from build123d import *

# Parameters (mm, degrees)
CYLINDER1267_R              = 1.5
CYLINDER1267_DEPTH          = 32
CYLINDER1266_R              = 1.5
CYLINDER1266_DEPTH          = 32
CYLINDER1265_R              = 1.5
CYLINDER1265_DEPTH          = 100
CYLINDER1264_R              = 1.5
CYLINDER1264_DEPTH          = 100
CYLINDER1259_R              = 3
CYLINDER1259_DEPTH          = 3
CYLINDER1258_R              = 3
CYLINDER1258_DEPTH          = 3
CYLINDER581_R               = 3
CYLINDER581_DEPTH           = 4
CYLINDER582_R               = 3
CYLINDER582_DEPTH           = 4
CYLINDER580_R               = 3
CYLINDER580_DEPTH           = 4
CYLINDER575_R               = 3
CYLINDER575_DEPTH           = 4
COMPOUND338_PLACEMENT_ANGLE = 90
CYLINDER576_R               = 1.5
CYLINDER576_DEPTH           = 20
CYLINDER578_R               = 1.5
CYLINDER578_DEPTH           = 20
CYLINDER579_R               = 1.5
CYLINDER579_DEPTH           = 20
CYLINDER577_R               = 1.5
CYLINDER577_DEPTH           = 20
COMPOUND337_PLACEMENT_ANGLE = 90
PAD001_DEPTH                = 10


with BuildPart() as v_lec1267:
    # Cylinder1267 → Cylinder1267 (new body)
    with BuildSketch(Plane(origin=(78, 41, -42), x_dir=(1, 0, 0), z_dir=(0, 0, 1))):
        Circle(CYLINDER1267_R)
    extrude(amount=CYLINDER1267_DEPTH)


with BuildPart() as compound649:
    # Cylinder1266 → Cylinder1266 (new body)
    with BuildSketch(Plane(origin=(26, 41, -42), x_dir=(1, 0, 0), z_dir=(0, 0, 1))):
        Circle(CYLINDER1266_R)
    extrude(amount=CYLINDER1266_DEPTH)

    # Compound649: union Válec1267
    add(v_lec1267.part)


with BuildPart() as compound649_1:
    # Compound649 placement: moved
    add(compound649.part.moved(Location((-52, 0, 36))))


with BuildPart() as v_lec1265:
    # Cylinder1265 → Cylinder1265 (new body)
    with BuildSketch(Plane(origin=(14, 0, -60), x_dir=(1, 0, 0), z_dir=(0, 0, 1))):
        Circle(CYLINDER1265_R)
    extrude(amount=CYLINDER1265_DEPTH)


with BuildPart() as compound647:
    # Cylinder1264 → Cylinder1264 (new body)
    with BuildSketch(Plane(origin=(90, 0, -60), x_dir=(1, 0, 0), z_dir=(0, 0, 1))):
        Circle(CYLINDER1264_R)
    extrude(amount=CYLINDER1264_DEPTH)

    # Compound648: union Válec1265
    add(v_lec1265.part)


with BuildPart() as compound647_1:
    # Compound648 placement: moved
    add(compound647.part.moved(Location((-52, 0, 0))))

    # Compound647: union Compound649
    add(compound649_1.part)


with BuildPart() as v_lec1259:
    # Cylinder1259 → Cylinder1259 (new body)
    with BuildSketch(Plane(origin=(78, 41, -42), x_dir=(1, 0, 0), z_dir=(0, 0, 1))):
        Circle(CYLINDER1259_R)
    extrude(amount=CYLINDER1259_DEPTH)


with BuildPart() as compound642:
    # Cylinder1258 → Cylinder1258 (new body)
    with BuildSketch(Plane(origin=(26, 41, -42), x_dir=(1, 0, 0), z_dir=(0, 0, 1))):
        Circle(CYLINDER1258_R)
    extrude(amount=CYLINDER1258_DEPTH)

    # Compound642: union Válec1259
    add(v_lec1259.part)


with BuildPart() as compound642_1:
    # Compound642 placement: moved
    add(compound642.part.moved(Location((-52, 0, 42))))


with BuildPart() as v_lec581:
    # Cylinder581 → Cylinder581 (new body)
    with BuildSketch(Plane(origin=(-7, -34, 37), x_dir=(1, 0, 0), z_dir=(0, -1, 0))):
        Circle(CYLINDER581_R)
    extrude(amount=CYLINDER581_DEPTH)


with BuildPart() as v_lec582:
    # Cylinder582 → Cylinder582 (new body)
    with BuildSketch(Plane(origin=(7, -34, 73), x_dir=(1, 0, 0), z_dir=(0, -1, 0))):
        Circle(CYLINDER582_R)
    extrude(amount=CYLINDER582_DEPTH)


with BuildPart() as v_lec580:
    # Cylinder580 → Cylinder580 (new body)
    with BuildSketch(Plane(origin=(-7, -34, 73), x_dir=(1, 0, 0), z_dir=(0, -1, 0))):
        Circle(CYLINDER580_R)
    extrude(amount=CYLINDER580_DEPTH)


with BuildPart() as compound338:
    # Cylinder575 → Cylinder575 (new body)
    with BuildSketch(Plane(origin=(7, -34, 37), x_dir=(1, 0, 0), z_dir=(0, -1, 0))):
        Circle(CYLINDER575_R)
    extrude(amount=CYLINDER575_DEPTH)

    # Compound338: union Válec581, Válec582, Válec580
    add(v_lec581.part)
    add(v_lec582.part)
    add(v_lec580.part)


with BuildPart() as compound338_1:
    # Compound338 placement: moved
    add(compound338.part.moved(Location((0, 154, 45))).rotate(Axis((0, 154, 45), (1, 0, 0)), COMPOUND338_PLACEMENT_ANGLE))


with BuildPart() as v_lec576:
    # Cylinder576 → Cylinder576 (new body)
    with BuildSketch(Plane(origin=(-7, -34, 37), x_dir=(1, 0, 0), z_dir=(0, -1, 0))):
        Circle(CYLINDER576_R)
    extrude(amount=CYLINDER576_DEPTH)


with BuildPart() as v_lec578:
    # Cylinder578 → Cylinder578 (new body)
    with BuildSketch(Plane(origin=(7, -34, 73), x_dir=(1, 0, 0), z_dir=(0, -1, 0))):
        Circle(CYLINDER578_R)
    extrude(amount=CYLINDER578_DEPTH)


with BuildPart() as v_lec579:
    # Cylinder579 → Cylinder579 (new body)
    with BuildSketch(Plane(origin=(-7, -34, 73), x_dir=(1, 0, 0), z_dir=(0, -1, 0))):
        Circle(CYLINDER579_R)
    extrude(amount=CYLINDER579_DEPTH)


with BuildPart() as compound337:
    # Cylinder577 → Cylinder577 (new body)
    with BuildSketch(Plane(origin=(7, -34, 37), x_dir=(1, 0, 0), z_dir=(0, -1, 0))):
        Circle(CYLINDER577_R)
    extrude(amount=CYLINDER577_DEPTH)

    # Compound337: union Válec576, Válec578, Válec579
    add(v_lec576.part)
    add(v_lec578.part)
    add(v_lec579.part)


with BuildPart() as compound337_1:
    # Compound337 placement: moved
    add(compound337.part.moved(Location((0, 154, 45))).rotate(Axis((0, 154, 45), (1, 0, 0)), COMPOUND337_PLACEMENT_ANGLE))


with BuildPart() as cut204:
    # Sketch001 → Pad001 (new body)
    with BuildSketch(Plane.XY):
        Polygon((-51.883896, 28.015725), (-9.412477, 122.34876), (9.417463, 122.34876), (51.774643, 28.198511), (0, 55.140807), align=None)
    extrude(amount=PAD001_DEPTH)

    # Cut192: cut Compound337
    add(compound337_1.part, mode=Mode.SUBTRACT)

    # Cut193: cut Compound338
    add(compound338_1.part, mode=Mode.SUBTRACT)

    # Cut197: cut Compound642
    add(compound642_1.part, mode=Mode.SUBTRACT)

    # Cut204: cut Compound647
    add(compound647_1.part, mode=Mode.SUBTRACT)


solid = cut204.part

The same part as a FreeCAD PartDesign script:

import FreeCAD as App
import Part
import Sketcher


def add_polygon(sketch, points):
    """Adds a closed chain of lines whose ends are joined by coincident constraints."""
    first, n = sketch.GeometryCount, len(points)
    for a, b in zip(points, points[1:] + points[:1]):
        sketch.addGeometry(Part.LineSegment(App.Vector(*a, 0), App.Vector(*b, 0)), False)
    for i in range(n):
        sketch.addConstraint(Sketcher.Constraint("Coincident", first + i, 2, first + (i + 1) % n, 1))

doc = App.newDocument("Part")
body = doc.addObject("PartDesign::Body", "Body")

# Sketch on XY plane
sketch1 = body.newObject("Sketcher::SketchObject", "Sketch")
sketch1.AttachmentSupport = (doc.getObject("XY_Plane"), [""])
sketch1.MapMode = "FlatFace"
sketch1.AttachmentOffset = App.Placement(App.Vector(0, 0, -42), App.Rotation())
sketch1.addGeometry(Part.Circle(App.Vector(78, 41, 0), App.Vector(0, 0, 1), 1.5), False)
sketch1.addConstraint([
    Sketcher.Constraint("Diameter", 0, 3.0),
    Sketcher.Constraint("DistanceX", -1, 1, 0, 3, 78.0),
    Sketcher.Constraint("DistanceY", -1, 1, 0, 3, 41.0),
])
pad1 = body.newObject("PartDesign::Pad", "Pad")
pad1.Profile = sketch1
pad1.Length = 32
body2 = doc.addObject("PartDesign::Body", "Body001")
body2.AllowCompound = True

# Sketch on XY plane
sketch2 = body2.newObject("Sketcher::SketchObject", "Sketch001")
sketch2.AttachmentSupport = (doc.getObject("XY_Plane001"), [""])
sketch2.MapMode = "FlatFace"
sketch2.AttachmentOffset = App.Placement(App.Vector(0, 0, -42), App.Rotation())
sketch2.addGeometry(Part.Circle(App.Vector(26, 41, 0), App.Vector(0, 0, 1), 1.5), False)
sketch2.addConstraint([
    Sketcher.Constraint("Diameter", 0, 3.0),
    Sketcher.Constraint("DistanceX", -1, 1, 0, 3, 26.0),
    Sketcher.Constraint("DistanceY", -1, 1, 0, 3, 41.0),
])
pad2 = body2.newObject("PartDesign::Pad", "Pad001")
pad2.Profile = sketch2
pad2.Length = 32
doc.recompute()

boolean = body2.newObject("PartDesign::Boolean", "Boolean")
boolean.Type = "Fuse"
boolean.addObjects([body])
body3 = doc.addObject("PartDesign::Body", "Body002")
body3.AllowCompound = True
doc.recompute()

body2.Placement = App.Placement(App.Vector(-52, 0, 36), App.Rotation(App.Vector(0, 0, 1), 0))
boolean2 = body3.newObject("PartDesign::Boolean", "Boolean001")
boolean2.Type = "Fuse"
boolean2.addObjects([body2])
body4 = doc.addObject("PartDesign::Body", "Body003")

# Sketch on XY plane
sketch3 = body4.newObject("Sketcher::SketchObject", "Sketch002")
sketch3.AttachmentSupport = (doc.getObject("XY_Plane003"), [""])
sketch3.MapMode = "FlatFace"
sketch3.AttachmentOffset = App.Placement(App.Vector(0, 0, -60), App.Rotation())
sketch3.addGeometry(Part.Circle(App.Vector(14, 0, 0), App.Vector(0, 0, 1), 1.5), False)
sketch3.addConstraint([
    Sketcher.Constraint("PointOnObject", 0, 3, -1),
    Sketcher.Constraint("Diameter", 0, 3.0),
    Sketcher.Constraint("DistanceX", -1, 1, 0, 3, 14.0),
])
pad3 = body4.newObject("PartDesign::Pad", "Pad002")
pad3.Profile = sketch3
pad3.Length = 100
body5 = doc.addObject("PartDesign::Body", "Body004")
body5.AllowCompound = True

# Sketch on XY plane
sketch4 = body5.newObject("Sketcher::SketchObject", "Sketch003")
sketch4.AttachmentSupport = (doc.getObject("XY_Plane004"), [""])
sketch4.MapMode = "FlatFace"
sketch4.AttachmentOffset = App.Placement(App.Vector(0, 0, -60), App.Rotation())
sketch4.addGeometry(Part.Circle(App.Vector(90, 0, 0), App.Vector(0, 0, 1), 1.5), False)
sketch4.addConstraint([
    Sketcher.Constraint("PointOnObject", 0, 3, -1),
    Sketcher.Constraint("Diameter", 0, 3.0),
    Sketcher.Constraint("DistanceX", -1, 1, 0, 3, 90.0),
])
pad4 = body5.newObject("PartDesign::Pad", "Pad003")
pad4.Profile = sketch4
pad4.Length = 100
doc.recompute()

boolean3 = body5.newObject("PartDesign::Boolean", "Boolean002")
boolean3.Type = "Fuse"
boolean3.addObjects([body4])
body6 = doc.addObject("PartDesign::Body", "Body005")
body6.AllowCompound = True
doc.recompute()

body5.Placement = App.Placement(App.Vector(-52, 0, 0), App.Rotation(App.Vector(0, 0, 1), 0))
boolean4 = body6.newObject("PartDesign::Boolean", "Boolean003")
boolean4.Type = "Fuse"
boolean4.addObjects([body5])
doc.recompute()

boolean5 = body6.newObject("PartDesign::Boolean", "Boolean004")
boolean5.Type = "Fuse"
boolean5.addObjects([body3])
body7 = doc.addObject("PartDesign::Body", "Body006")

# Sketch on XY plane
sketch5 = body7.newObject("Sketcher::SketchObject", "Sketch004")
sketch5.AttachmentSupport = (doc.getObject("XY_Plane006"), [""])
sketch5.MapMode = "FlatFace"
sketch5.AttachmentOffset = App.Placement(App.Vector(0, 0, -42), App.Rotation())
sketch5.addGeometry(Part.Circle(App.Vector(78, 41, 0), App.Vector(0, 0, 1), 3), False)
sketch5.addConstraint([
    Sketcher.Constraint("Diameter", 0, 6.0),
    Sketcher.Constraint("DistanceX", -1, 1, 0, 3, 78.0),
    Sketcher.Constraint("DistanceY", -1, 1, 0, 3, 41.0),
])
pad5 = body7.newObject("PartDesign::Pad", "Pad004")
pad5.Profile = sketch5
pad5.Length = 3
body8 = doc.addObject("PartDesign::Body", "Body007")
body8.AllowCompound = True

# Sketch on XY plane
sketch6 = body8.newObject("Sketcher::SketchObject", "Sketch005")
sketch6.AttachmentSupport = (doc.getObject("XY_Plane007"), [""])
sketch6.MapMode = "FlatFace"
sketch6.AttachmentOffset = App.Placement(App.Vector(0, 0, -42), App.Rotation())
sketch6.addGeometry(Part.Circle(App.Vector(26, 41, 0), App.Vector(0, 0, 1), 3), False)
sketch6.addConstraint([
    Sketcher.Constraint("Diameter", 0, 6.0),
    Sketcher.Constraint("DistanceX", -1, 1, 0, 3, 26.0),
    Sketcher.Constraint("DistanceY", -1, 1, 0, 3, 41.0),
])
pad6 = body8.newObject("PartDesign::Pad", "Pad005")
pad6.Profile = sketch6
pad6.Length = 3
doc.recompute()

boolean6 = body8.newObject("PartDesign::Boolean", "Boolean005")
boolean6.Type = "Fuse"
boolean6.addObjects([body7])
body9 = doc.addObject("PartDesign::Body", "Body008")
body9.AllowCompound = True
doc.recompute()

body8.Placement = App.Placement(App.Vector(-52, 0, 42), App.Rotation(App.Vector(0, 0, 1), 0))
boolean7 = body9.newObject("PartDesign::Boolean", "Boolean006")
boolean7.Type = "Fuse"
boolean7.addObjects([body8])
body10 = doc.addObject("PartDesign::Body", "Body009")

# Sketch on XZ plane
sketch7 = body10.newObject("Sketcher::SketchObject", "Sketch006")
sketch7.AttachmentSupport = (doc.getObject("XZ_Plane009"), [""])
sketch7.MapMode = "FlatFace"
sketch7.AttachmentOffset = App.Placement(App.Vector(0, 0, 34), App.Rotation())
sketch7.addGeometry(Part.Circle(App.Vector(-7, 37, 0), App.Vector(0, 0, 1), 3), False)
sketch7.addConstraint([
    Sketcher.Constraint("Diameter", 0, 6.0),
    Sketcher.Constraint("DistanceX", 0, 3, -1, 1, 7.0),
    Sketcher.Constraint("DistanceY", -1, 1, 0, 3, 37.0),
])
pad7 = body10.newObject("PartDesign::Pad", "Pad006")
pad7.Profile = sketch7
pad7.Length = 4
body11 = doc.addObject("PartDesign::Body", "Body010")

# Sketch on XZ plane
sketch8 = body11.newObject("Sketcher::SketchObject", "Sketch007")
sketch8.AttachmentSupport = (doc.getObject("XZ_Plane010"), [""])
sketch8.MapMode = "FlatFace"
sketch8.AttachmentOffset = App.Placement(App.Vector(0, 0, 34), App.Rotation())
sketch8.addGeometry(Part.Circle(App.Vector(7, 73, 0), App.Vector(0, 0, 1), 3), False)
sketch8.addConstraint([
    Sketcher.Constraint("Diameter", 0, 6.0),
    Sketcher.Constraint("DistanceX", -1, 1, 0, 3, 7.0),
    Sketcher.Constraint("DistanceY", -1, 1, 0, 3, 73.0),
])
pad8 = body11.newObject("PartDesign::Pad", "Pad007")
pad8.Profile = sketch8
pad8.Length = 4
body12 = doc.addObject("PartDesign::Body", "Body011")

# Sketch on XZ plane
sketch9 = body12.newObject("Sketcher::SketchObject", "Sketch008")
sketch9.AttachmentSupport = (doc.getObject("XZ_Plane011"), [""])
sketch9.MapMode = "FlatFace"
sketch9.AttachmentOffset = App.Placement(App.Vector(0, 0, 34), App.Rotation())
sketch9.addGeometry(Part.Circle(App.Vector(-7, 73, 0), App.Vector(0, 0, 1), 3), False)
sketch9.addConstraint([
    Sketcher.Constraint("Diameter", 0, 6.0),
    Sketcher.Constraint("DistanceX", 0, 3, -1, 1, 7.0),
    Sketcher.Constraint("DistanceY", -1, 1, 0, 3, 73.0),
])
pad9 = body12.newObject("PartDesign::Pad", "Pad008")
pad9.Profile = sketch9
pad9.Length = 4
body13 = doc.addObject("PartDesign::Body", "Body012")
body13.AllowCompound = True

# Sketch on XZ plane
sketch10 = body13.newObject("Sketcher::SketchObject", "Sketch009")
sketch10.AttachmentSupport = (doc.getObject("XZ_Plane012"), [""])
sketch10.MapMode = "FlatFace"
sketch10.AttachmentOffset = App.Placement(App.Vector(0, 0, 34), App.Rotation())
sketch10.addGeometry(Part.Circle(App.Vector(7, 37, 0), App.Vector(0, 0, 1), 3), False)
sketch10.addConstraint([
    Sketcher.Constraint("Diameter", 0, 6.0),
    Sketcher.Constraint("DistanceX", -1, 1, 0, 3, 7.0),
    Sketcher.Constraint("DistanceY", -1, 1, 0, 3, 37.0),
])
pad10 = body13.newObject("PartDesign::Pad", "Pad009")
pad10.Profile = sketch10
pad10.Length = 4
doc.recompute()

boolean8 = body13.newObject("PartDesign::Boolean", "Boolean007")
boolean8.Type = "Fuse"
boolean8.addObjects([body10])
doc.recompute()

boolean9 = body13.newObject("PartDesign::Boolean", "Boolean008")
boolean9.Type = "Fuse"
boolean9.addObjects([body11])
doc.recompute()

boolean10 = body13.newObject("PartDesign::Boolean", "Boolean009")
boolean10.Type = "Fuse"
boolean10.addObjects([body12])
body14 = doc.addObject("PartDesign::Body", "Body013")
body14.AllowCompound = True
doc.recompute()

body13.Placement = App.Placement(App.Vector(0, 154, 45), App.Rotation(App.Vector(1, 0, 0), 90))
boolean11 = body14.newObject("PartDesign::Boolean", "Boolean010")
boolean11.Type = "Fuse"
boolean11.addObjects([body13])
body15 = doc.addObject("PartDesign::Body", "Body014")

# Sketch on XZ plane
sketch11 = body15.newObject("Sketcher::SketchObject", "Sketch010")
sketch11.AttachmentSupport = (doc.getObject("XZ_Plane014"), [""])
sketch11.MapMode = "FlatFace"
sketch11.AttachmentOffset = App.Placement(App.Vector(0, 0, 34), App.Rotation())
sketch11.addGeometry(Part.Circle(App.Vector(-7, 37, 0), App.Vector(0, 0, 1), 1.5), False)
sketch11.addConstraint([
    Sketcher.Constraint("Diameter", 0, 3.0),
    Sketcher.Constraint("DistanceX", 0, 3, -1, 1, 7.0),
    Sketcher.Constraint("DistanceY", -1, 1, 0, 3, 37.0),
])
pad11 = body15.newObject("PartDesign::Pad", "Pad010")
pad11.Profile = sketch11
pad11.Length = 20
body16 = doc.addObject("PartDesign::Body", "Body015")

# Sketch on XZ plane
sketch12 = body16.newObject("Sketcher::SketchObject", "Sketch011")
sketch12.AttachmentSupport = (doc.getObject("XZ_Plane015"), [""])
sketch12.MapMode = "FlatFace"
sketch12.AttachmentOffset = App.Placement(App.Vector(0, 0, 34), App.Rotation())
sketch12.addGeometry(Part.Circle(App.Vector(7, 73, 0), App.Vector(0, 0, 1), 1.5), False)
sketch12.addConstraint([
    Sketcher.Constraint("Diameter", 0, 3.0),
    Sketcher.Constraint("DistanceX", -1, 1, 0, 3, 7.0),
    Sketcher.Constraint("DistanceY", -1, 1, 0, 3, 73.0),
])
pad12 = body16.newObject("PartDesign::Pad", "Pad011")
pad12.Profile = sketch12
pad12.Length = 20
body17 = doc.addObject("PartDesign::Body", "Body016")

# Sketch on XZ plane
sketch13 = body17.newObject("Sketcher::SketchObject", "Sketch012")
sketch13.AttachmentSupport = (doc.getObject("XZ_Plane016"), [""])
sketch13.MapMode = "FlatFace"
sketch13.AttachmentOffset = App.Placement(App.Vector(0, 0, 34), App.Rotation())
sketch13.addGeometry(Part.Circle(App.Vector(-7, 73, 0), App.Vector(0, 0, 1), 1.5), False)
sketch13.addConstraint([
    Sketcher.Constraint("Diameter", 0, 3.0),
    Sketcher.Constraint("DistanceX", 0, 3, -1, 1, 7.0),
    Sketcher.Constraint("DistanceY", -1, 1, 0, 3, 73.0),
])
pad13 = body17.newObject("PartDesign::Pad", "Pad012")
pad13.Profile = sketch13
pad13.Length = 20
body18 = doc.addObject("PartDesign::Body", "Body017")
body18.AllowCompound = True

# Sketch on XZ plane
sketch14 = body18.newObject("Sketcher::SketchObject", "Sketch013")
sketch14.AttachmentSupport = (doc.getObject("XZ_Plane017"), [""])
sketch14.MapMode = "FlatFace"
sketch14.AttachmentOffset = App.Placement(App.Vector(0, 0, 34), App.Rotation())
sketch14.addGeometry(Part.Circle(App.Vector(7, 37, 0), App.Vector(0, 0, 1), 1.5), False)
sketch14.addConstraint([
    Sketcher.Constraint("Diameter", 0, 3.0),
    Sketcher.Constraint("DistanceX", -1, 1, 0, 3, 7.0),
    Sketcher.Constraint("DistanceY", -1, 1, 0, 3, 37.0),
])
pad14 = body18.newObject("PartDesign::Pad", "Pad013")
pad14.Profile = sketch14
pad14.Length = 20
doc.recompute()

boolean12 = body18.newObject("PartDesign::Boolean", "Boolean011")
boolean12.Type = "Fuse"
boolean12.addObjects([body15])
doc.recompute()

boolean13 = body18.newObject("PartDesign::Boolean", "Boolean012")
boolean13.Type = "Fuse"
boolean13.addObjects([body16])
doc.recompute()

boolean14 = body18.newObject("PartDesign::Boolean", "Boolean013")
boolean14.Type = "Fuse"
boolean14.addObjects([body17])
body19 = doc.addObject("PartDesign::Body", "Body018")
body19.AllowCompound = True
doc.recompute()

body18.Placement = App.Placement(App.Vector(0, 154, 45), App.Rotation(App.Vector(1, 0, 0), 90))
boolean15 = body19.newObject("PartDesign::Boolean", "Boolean014")
boolean15.Type = "Fuse"
boolean15.addObjects([body18])
body20 = doc.addObject("PartDesign::Body", "Body019")

# Sketch on XY plane
sketch15 = body20.newObject("Sketcher::SketchObject", "Sketch014")
sketch15.AttachmentSupport = (doc.getObject("XY_Plane019"), [""])
sketch15.MapMode = "FlatFace"
add_polygon(sketch15, [(-9, 122), (-52, 28), (0, 55), (52, 28), (9, 122)])  # lines 0-4
sketch15.addConstraint([
    Sketcher.Constraint("Horizontal", 4),
    Sketcher.Constraint("PointOnObject", 1, 2, -2),
    Sketcher.Constraint("DistanceX", 4, 2, 4, 1, 18.82994),
    Sketcher.Constraint("DistanceY", -1, 1, 2, 2, 28.198511),
    Sketcher.Constraint("DistanceY", -1, 1, 3, 2, 122.34876),
    Sketcher.Constraint("DistanceX", 0, 2, 2, 2, 103.658539),
    Sketcher.Constraint("DistanceX", 3, 2, 2, 2, 42.35718),
    Sketcher.Constraint("Distance", 0, 103.453095),
    Sketcher.Constraint("Distance", 1, 58.546637),
    Sketcher.Constraint("Distance", 2, 58.365238),
])
pad15 = body20.newObject("PartDesign::Pad", "Pad014")
pad15.Profile = sketch15
pad15.Length = 10
doc.recompute()

boolean16 = body20.newObject("PartDesign::Boolean", "Boolean015")
boolean16.Type = "Cut"
boolean16.addObjects([body19])
doc.recompute()

boolean17 = body20.newObject("PartDesign::Boolean", "Boolean016")
boolean17.Type = "Cut"
boolean17.addObjects([body14])
doc.recompute()

boolean18 = body20.newObject("PartDesign::Boolean", "Boolean017")
boolean18.Type = "Cut"
boolean18.addObjects([body9])
doc.recompute()

boolean19 = body20.newObject("PartDesign::Boolean", "Boolean018")
boolean19.Type = "Cut"
boolean19.addObjects([body6])

doc.recompute()
